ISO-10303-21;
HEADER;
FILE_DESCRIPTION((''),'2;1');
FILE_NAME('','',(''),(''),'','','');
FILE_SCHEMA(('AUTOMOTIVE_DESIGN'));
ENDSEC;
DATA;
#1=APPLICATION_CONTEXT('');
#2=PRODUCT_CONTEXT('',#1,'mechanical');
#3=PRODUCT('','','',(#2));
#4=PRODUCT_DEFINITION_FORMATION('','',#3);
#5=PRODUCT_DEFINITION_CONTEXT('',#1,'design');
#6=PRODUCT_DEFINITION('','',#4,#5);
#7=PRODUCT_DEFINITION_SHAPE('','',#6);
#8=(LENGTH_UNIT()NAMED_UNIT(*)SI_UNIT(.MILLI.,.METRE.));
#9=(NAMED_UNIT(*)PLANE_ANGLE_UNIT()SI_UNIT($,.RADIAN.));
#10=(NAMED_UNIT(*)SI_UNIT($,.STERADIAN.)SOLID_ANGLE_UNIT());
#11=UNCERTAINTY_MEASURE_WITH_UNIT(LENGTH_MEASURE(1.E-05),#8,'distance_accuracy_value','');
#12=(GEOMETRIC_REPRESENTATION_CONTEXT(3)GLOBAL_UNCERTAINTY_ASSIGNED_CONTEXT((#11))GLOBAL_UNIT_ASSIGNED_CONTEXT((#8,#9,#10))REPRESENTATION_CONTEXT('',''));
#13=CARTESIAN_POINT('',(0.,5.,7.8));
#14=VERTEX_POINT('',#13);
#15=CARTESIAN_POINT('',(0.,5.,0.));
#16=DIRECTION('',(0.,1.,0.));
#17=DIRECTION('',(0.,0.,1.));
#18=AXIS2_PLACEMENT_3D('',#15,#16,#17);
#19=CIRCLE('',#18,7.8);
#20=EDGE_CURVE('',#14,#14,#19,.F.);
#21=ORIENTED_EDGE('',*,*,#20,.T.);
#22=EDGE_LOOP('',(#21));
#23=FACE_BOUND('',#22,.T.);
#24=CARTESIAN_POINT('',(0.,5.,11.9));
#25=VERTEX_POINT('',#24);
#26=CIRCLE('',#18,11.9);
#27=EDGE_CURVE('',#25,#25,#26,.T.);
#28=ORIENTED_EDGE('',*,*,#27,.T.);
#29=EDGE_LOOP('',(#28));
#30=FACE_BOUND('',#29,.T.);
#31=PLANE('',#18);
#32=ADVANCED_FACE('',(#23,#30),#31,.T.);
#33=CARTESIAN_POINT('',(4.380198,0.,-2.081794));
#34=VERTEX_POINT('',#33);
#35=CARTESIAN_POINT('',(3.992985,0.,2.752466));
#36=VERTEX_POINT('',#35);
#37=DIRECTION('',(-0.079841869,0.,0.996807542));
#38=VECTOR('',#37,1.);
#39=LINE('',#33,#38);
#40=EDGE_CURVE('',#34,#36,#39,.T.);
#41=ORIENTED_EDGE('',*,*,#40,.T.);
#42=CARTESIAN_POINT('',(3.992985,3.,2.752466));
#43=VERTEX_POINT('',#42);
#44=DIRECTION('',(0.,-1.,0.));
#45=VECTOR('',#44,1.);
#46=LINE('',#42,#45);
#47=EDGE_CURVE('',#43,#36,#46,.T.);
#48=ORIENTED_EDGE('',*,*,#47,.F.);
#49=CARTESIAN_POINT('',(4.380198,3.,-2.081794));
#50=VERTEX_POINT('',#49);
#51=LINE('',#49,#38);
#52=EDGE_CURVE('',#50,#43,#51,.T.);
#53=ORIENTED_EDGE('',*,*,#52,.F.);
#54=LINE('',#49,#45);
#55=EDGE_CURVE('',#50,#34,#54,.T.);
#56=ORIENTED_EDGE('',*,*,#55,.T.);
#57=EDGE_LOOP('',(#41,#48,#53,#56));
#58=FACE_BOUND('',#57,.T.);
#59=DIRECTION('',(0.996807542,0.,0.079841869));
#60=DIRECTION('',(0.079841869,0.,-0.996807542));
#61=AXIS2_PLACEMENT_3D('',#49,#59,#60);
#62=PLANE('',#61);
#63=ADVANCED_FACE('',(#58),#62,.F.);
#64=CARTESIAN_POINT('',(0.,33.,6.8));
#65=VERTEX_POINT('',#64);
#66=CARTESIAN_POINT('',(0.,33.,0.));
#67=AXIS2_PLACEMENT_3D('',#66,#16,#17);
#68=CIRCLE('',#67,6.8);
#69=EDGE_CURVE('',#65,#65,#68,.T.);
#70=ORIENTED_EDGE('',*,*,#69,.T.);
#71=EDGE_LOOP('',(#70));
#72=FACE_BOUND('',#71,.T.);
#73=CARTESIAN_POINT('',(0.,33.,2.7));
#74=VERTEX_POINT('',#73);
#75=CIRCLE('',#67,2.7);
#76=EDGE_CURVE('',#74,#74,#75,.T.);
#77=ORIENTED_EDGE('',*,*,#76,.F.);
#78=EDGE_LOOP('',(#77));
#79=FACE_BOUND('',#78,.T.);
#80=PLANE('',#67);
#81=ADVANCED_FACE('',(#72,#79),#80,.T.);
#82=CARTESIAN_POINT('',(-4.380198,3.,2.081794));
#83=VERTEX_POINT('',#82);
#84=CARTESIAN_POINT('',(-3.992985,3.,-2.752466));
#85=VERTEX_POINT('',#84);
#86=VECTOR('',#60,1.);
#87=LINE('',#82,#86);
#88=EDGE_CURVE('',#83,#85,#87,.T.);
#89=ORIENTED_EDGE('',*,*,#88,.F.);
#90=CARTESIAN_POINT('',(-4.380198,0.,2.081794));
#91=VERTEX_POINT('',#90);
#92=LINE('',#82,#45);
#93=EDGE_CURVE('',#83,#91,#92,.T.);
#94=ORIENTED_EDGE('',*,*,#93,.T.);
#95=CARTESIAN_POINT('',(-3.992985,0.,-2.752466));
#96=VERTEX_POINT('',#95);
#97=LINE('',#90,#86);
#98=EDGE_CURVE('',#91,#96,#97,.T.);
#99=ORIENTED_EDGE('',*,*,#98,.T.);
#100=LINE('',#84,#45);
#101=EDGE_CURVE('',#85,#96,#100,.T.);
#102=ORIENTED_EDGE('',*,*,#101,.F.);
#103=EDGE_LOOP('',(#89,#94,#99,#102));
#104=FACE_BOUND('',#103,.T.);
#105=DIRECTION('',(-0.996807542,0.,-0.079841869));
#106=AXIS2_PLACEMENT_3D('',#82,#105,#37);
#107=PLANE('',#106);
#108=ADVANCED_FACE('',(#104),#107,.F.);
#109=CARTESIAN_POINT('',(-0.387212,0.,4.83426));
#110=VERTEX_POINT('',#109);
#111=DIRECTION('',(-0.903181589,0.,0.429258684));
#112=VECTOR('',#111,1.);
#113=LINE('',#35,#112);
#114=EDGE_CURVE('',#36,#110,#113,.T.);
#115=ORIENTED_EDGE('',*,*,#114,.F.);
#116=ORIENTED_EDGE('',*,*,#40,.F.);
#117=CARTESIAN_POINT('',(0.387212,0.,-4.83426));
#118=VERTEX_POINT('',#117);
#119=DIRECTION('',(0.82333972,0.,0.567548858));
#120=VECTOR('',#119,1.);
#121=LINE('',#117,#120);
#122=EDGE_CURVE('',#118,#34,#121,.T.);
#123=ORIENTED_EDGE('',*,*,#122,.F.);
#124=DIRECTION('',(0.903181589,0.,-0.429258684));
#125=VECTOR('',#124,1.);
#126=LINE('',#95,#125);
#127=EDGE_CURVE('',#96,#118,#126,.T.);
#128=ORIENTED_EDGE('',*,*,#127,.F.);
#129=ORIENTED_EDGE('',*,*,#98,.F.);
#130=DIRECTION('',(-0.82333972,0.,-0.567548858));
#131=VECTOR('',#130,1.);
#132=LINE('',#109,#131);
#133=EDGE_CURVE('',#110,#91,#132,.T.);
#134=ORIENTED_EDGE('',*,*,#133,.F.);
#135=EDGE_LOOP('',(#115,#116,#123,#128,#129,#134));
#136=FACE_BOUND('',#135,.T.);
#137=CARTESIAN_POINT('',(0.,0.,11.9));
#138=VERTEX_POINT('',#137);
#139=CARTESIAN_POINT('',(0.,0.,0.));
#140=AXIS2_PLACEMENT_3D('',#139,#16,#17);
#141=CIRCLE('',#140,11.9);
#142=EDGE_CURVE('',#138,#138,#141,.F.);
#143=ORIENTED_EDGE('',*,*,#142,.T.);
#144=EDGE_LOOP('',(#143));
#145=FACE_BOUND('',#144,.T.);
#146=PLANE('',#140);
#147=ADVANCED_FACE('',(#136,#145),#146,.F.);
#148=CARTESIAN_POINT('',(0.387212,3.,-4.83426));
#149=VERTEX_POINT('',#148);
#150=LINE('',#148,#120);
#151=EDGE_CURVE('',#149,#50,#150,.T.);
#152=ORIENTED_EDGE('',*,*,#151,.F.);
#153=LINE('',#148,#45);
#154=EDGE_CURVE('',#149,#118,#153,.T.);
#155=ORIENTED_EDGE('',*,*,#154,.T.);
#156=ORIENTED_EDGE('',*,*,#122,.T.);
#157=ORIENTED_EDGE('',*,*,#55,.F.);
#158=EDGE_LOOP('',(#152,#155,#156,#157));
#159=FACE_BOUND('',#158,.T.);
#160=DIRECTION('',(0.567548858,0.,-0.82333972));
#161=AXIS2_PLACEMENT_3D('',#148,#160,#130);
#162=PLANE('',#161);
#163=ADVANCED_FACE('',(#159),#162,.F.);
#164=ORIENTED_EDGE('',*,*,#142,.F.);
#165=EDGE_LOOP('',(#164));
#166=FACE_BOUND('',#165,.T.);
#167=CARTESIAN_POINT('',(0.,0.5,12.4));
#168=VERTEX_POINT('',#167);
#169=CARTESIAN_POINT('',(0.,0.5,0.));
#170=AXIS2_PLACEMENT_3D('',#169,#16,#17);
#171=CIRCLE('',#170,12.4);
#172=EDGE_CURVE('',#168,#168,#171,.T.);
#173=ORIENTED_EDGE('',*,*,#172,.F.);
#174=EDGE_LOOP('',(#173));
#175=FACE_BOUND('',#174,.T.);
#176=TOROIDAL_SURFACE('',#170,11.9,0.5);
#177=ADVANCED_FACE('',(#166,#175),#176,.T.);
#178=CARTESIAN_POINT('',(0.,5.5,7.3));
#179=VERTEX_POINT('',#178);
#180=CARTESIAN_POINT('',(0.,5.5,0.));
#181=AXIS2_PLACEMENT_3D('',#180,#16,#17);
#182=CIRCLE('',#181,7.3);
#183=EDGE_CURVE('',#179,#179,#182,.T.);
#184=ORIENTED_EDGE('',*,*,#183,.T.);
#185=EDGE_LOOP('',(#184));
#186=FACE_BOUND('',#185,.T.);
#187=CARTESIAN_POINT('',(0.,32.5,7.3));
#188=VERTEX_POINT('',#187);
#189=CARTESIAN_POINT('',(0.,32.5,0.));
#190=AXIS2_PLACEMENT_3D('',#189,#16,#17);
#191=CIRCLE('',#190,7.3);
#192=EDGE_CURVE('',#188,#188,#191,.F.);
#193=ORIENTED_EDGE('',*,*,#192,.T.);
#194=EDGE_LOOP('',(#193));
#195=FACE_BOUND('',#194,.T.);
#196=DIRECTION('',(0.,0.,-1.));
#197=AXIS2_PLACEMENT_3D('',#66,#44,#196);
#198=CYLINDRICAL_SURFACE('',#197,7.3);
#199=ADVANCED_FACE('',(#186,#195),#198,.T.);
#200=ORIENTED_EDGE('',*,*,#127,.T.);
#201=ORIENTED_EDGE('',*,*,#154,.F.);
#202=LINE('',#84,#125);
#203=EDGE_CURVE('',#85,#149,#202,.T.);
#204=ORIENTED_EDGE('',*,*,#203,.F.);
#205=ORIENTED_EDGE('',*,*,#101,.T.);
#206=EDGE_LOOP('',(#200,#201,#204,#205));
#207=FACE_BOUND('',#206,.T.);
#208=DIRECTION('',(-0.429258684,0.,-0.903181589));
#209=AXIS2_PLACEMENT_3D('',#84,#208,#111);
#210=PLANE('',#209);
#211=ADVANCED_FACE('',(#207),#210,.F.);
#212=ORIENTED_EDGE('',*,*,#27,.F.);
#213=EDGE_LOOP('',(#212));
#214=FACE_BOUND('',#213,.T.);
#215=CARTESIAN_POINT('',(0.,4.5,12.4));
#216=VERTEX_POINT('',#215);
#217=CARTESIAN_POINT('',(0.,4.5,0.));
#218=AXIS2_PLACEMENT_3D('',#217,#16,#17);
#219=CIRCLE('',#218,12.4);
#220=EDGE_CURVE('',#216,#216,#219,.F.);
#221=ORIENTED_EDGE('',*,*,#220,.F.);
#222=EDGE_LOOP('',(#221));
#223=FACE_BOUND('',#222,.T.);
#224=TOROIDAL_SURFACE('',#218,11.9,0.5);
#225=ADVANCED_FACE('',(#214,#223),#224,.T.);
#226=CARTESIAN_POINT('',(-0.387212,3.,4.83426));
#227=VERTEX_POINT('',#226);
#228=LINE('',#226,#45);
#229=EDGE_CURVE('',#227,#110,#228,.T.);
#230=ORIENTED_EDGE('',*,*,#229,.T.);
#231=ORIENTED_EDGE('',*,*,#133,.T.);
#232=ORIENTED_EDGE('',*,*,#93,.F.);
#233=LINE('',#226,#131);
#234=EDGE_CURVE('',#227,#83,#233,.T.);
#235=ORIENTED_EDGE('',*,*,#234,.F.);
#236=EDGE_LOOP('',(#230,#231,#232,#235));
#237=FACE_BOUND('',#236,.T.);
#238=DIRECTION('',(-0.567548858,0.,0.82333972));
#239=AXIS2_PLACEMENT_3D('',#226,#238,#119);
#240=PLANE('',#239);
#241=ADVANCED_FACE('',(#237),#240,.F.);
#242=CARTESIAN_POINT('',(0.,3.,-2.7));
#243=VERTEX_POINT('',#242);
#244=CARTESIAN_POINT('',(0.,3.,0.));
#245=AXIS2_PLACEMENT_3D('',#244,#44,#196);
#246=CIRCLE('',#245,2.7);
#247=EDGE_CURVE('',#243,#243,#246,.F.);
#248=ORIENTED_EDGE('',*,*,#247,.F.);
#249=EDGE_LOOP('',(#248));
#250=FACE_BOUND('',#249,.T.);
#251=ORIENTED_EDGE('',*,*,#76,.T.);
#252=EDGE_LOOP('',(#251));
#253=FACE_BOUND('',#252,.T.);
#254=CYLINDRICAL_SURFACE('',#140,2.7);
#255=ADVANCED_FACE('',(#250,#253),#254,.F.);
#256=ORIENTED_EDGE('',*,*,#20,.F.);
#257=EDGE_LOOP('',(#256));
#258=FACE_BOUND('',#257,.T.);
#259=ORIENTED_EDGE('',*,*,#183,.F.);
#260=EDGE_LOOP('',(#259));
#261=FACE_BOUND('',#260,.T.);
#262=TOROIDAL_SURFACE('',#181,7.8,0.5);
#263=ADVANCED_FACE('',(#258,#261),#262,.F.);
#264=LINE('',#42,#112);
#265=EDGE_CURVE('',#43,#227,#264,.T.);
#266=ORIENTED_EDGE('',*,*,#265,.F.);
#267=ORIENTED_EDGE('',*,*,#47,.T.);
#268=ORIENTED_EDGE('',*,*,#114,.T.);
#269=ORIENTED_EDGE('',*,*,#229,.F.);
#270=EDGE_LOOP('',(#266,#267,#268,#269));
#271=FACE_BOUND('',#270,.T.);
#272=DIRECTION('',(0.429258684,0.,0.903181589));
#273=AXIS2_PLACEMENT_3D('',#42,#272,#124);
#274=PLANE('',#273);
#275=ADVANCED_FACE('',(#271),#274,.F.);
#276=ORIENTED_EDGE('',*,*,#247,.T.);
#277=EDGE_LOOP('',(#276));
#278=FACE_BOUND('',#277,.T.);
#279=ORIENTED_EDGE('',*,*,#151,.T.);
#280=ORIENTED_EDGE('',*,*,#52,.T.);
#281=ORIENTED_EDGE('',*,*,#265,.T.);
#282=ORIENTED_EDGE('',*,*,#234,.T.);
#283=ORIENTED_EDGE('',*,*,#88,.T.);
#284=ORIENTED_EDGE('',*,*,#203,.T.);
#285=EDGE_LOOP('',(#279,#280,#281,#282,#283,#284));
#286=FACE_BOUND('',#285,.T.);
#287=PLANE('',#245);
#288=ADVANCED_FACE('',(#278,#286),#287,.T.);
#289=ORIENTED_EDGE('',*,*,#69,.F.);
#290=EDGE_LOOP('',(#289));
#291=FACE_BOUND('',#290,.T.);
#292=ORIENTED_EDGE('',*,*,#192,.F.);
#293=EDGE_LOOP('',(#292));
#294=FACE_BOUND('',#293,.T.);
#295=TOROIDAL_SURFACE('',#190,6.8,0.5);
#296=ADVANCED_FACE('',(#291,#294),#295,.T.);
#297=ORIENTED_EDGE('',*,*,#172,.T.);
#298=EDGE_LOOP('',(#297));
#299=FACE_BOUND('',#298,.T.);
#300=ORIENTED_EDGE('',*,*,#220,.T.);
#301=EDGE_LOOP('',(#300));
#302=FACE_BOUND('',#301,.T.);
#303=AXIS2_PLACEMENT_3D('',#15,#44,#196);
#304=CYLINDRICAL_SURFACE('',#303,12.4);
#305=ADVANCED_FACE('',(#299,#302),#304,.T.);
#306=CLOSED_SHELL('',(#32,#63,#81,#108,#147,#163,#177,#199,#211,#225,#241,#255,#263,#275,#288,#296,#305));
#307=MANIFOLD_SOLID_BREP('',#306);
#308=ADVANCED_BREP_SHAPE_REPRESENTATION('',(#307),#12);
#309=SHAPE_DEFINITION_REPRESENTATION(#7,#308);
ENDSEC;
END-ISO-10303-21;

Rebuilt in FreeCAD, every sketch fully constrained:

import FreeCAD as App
import Part
import Sketcher

V = App.Vector
Q = App.Units.Quantity


def edges_at(feature, points):
    """Names of the edges that pass closest to the given points."""
    edges = feature.Shape.Edges
    near = lambda p: min(range(len(edges)), key=lambda i: edges[i].distToShape(Part.Vertex(*p))[0])
    return sorted({f"Edge{near(p) + 1}" for p in points})

doc = App.newDocument("Part")
body = doc.addObject("PartDesign::Body", "Body")

# Sketch on XZ plane
sketch1 = body.newObject("Sketcher::SketchObject", "Sketch")
sketch1.AttachmentSupport = (doc.getObject("XZ_Plane"), [""])
sketch1.MapMode = "FlatFace"
sketch1.addGeometry(Part.Circle(V(0, 0, 0), V(0, 0, 1), 12), False)
sketch1.addConstraint([
    Sketcher.Constraint("Coincident", 0, 3, -1, 1),
    Sketcher.Constraint("Diameter", 0, Q("24.8 mm")),
])
pad1 = body.newObject("PartDesign::Pad", "Pad")
pad1.Profile = sketch1
pad1.Length = 5
pad1.Reversed = True

# Sketch on XZ plane
sketch2 = body.newObject("Sketcher::SketchObject", "Sketch001")
sketch2.AttachmentSupport = (doc.getObject("XZ_Plane"), [""])
sketch2.MapMode = "FlatFace"
sketch2.AttachmentOffset = App.Placement(V(0, 0, -5), App.Rotation())
sketch2.addGeometry(Part.Circle(V(0, 0, 0), V(0, 0, 1), 7), False)
sketch2.addConstraint([
    Sketcher.Constraint("Coincident", 0, 3, -1, 1),
    Sketcher.Constraint("Diameter", 0, Q("14.6 mm")),
])
pad2 = body.newObject("PartDesign::Pad", "Pad001")
pad2.Profile = sketch2
pad2.Length = 28
pad2.Reversed = True

# Sketch on XZ plane
sketch3 = body.newObject("Sketcher::SketchObject", "Sketch002")
sketch3.AttachmentSupport = (doc.getObject("XZ_Plane"), [""])
sketch3.MapMode = "FlatFace"
sketch3.AttachmentOffset = App.Placement(V(0, 0, -33), App.Rotation())
sketch3.addGeometry(Part.Circle(V(0, 0, 0), V(0, 0, 1), 2.7), False)
sketch3.addConstraint([
    Sketcher.Constraint("Coincident", 0, 3, -1, 1),
    Sketcher.Constraint("Diameter", 0, Q("5.4 mm")),
])
pocket1 = body.newObject("PartDesign::Pocket", "Pocket")
pocket1.Profile = sketch3
pocket1.Type = "ThroughAll"
pocket1.Reversed = True

# Sketch on XZ plane
sketch4 = body.newObject("Sketcher::SketchObject", "Sketch003")
sketch4.AttachmentSupport = (doc.getObject("XZ_Plane"), [""])
sketch4.MapMode = "FlatFace"
sketch4.addGeometry([
    Part.LineSegment(V(-4.4, 2.1, 0), V(-4, -2.8, 0)),  # 0
    Part.LineSegment(V(-4, -2.8, 0), V(0.4, -4.8, 0)),  # 1
    Part.LineSegment(V(0.4, -4.8, 0), V(4.4, -2.1, 0)),  # 2
    Part.LineSegment(V(4.4, -2.1, 0), V(4, 2.8, 0)),  # 3
    Part.LineSegment(V(4, 2.8, 0), V(-0.4, 4.8, 0)),  # 4
    Part.LineSegment(V(-0.4, 4.8, 0), V(-4.4, 2.1, 0)),  # 5
], False)
sketch4.addConstraint([
    Sketcher.Constraint("Coincident", 0, 2, 1, 1),
    Sketcher.Constraint("Coincident", 1, 2, 2, 1),
    Sketcher.Constraint("Coincident", 2, 2, 3, 1),
    Sketcher.Constraint("Coincident", 3, 2, 4, 1),
    Sketcher.Constraint("Coincident", 4, 2, 5, 1),
    Sketcher.Constraint("Coincident", 5, 2, 0, 1),
    Sketcher.Constraint("Symmetric", 0, 2, 3, 2, -1, 1),
    Sketcher.Constraint("Symmetric", 1, 2, 4, 2, -1, 1),
    Sketcher.Constraint("Symmetric", 2, 2, 5, 2, -1, 1),
    Sketcher.Constraint("Equal", 0, 1),
    Sketcher.Constraint("Equal", 1, 2),
    Sketcher.Constraint("DistanceY", 1, 2, -1, 1, Q("4.83426 mm")),
    Sketcher.Constraint("DistanceY", 0, 2, 2, 2, Q("0.670672 mm")),
    Sketcher.Constraint("DistanceY", 2, 2, 3, 2, Q("4.83426 mm")),
    Sketcher.Constraint("DistanceX", 0, 2, 3, 2, Q("7.985971 mm")),
])
pocket2 = body.newObject("PartDesign::Pocket", "Pocket001")
pocket2.Profile = sketch4
pocket2.Length = 3
doc.recompute()

fillet = body.newObject("PartDesign::Fillet", "Fillet")
fillet.Base = (pocket2, edges_at(pocket2, [
    (-12.4, 0, 0),
    (-12.4, 5, 0),
    (-7.3, 5, 0),
    (-7.3, 33, 0),
]))
fillet.Radius = 0.5

doc.recompute()
